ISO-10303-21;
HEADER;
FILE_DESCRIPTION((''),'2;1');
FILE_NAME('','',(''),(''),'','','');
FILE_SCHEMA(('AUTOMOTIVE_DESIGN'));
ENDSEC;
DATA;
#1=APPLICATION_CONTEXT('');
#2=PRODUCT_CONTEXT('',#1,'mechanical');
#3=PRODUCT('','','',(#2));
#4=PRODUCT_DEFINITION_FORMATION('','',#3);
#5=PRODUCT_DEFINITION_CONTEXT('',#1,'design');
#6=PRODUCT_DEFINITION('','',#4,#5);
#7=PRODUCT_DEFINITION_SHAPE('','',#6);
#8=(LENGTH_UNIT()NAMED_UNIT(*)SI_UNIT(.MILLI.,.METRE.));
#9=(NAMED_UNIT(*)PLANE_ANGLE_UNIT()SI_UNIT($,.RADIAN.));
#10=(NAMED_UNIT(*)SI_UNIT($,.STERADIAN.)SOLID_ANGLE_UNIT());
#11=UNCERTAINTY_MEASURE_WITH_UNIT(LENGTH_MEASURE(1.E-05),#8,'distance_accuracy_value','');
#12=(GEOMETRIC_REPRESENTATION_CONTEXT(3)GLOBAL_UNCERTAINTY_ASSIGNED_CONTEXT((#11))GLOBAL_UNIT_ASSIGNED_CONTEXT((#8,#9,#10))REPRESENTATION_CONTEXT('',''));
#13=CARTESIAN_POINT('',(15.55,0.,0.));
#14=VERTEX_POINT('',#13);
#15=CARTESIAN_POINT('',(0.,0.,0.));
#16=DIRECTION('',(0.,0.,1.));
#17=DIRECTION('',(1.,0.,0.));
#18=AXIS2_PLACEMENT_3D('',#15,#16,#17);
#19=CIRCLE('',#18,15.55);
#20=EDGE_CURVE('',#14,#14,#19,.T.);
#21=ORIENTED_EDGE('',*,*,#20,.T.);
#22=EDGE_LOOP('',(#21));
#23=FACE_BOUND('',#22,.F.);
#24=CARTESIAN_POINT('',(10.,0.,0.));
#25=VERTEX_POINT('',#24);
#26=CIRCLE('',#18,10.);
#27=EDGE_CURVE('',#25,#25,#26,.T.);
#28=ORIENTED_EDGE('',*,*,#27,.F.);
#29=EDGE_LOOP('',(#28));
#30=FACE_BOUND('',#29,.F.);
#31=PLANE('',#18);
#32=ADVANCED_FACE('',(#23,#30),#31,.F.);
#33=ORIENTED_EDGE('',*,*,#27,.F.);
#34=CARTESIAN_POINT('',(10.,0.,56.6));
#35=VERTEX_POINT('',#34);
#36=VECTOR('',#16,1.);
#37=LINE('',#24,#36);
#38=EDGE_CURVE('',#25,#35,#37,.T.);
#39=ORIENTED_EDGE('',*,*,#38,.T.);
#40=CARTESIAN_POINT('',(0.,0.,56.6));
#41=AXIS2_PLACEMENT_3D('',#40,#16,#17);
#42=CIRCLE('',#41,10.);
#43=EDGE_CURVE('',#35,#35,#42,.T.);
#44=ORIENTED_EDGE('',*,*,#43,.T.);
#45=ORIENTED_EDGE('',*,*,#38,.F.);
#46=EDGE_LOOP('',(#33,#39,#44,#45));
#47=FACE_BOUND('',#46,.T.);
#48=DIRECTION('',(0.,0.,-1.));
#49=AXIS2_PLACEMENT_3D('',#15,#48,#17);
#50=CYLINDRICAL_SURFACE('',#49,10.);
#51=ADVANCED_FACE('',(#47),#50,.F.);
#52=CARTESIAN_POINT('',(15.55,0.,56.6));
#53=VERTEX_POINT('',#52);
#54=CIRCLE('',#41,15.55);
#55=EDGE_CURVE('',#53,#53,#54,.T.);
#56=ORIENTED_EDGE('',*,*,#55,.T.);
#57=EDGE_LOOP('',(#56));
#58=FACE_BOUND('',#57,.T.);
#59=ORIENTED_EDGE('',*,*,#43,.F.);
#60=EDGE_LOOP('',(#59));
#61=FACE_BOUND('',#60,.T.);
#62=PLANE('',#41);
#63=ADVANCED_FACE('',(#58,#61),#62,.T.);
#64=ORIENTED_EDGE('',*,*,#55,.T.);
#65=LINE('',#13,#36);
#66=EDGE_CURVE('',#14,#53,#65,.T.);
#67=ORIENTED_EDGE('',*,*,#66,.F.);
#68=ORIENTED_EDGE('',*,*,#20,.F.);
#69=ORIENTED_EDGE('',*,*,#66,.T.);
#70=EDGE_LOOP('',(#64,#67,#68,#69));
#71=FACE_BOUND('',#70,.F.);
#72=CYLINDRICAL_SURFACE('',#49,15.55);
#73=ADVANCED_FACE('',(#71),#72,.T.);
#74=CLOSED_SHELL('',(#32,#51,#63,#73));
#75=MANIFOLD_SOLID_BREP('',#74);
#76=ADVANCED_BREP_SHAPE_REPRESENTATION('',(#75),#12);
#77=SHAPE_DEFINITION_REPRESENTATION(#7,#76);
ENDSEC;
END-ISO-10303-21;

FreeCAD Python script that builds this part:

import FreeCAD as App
import Part
import Sketcher
from FreeCAD import Vector

doc = App.newDocument("Part")
body = doc.addObject("PartDesign::Body", "Body")

# Sketch on XY plane
sketch1 = doc.addObject("Sketcher::SketchObject", "Sketch")
body.addObject(sketch1)
sketch1.AttachmentSupport = (doc.XY_Plane, [""])
sketch1.MapMode = "FlatFace"
sketch1.addGeometry(Part.Circle(Vector(0, 0, 0), Vector(0, 0, 1), 16), False)
sketch1.addGeometry(Part.Circle(Vector(0, 0, 0), Vector(0, 0, 1), 10), False)
sketch1.addConstraint(Sketcher.Constraint("Coincident", 0, 3, -1, 1))
sketch1.addConstraint(Sketcher.Constraint("Coincident", 1, 3, -1, 1))
sketch1.addConstraint(Sketcher.Constraint("Diameter", 1, 20.0))
sketch1.addConstraint(Sketcher.Constraint("Diameter", 0, 31.1))
pad1 = doc.addObject("PartDesign::Pad", "Pad")
body.addObject(pad1)
pad1.Profile = sketch1
pad1.Length = 56.6

doc.recompute()
